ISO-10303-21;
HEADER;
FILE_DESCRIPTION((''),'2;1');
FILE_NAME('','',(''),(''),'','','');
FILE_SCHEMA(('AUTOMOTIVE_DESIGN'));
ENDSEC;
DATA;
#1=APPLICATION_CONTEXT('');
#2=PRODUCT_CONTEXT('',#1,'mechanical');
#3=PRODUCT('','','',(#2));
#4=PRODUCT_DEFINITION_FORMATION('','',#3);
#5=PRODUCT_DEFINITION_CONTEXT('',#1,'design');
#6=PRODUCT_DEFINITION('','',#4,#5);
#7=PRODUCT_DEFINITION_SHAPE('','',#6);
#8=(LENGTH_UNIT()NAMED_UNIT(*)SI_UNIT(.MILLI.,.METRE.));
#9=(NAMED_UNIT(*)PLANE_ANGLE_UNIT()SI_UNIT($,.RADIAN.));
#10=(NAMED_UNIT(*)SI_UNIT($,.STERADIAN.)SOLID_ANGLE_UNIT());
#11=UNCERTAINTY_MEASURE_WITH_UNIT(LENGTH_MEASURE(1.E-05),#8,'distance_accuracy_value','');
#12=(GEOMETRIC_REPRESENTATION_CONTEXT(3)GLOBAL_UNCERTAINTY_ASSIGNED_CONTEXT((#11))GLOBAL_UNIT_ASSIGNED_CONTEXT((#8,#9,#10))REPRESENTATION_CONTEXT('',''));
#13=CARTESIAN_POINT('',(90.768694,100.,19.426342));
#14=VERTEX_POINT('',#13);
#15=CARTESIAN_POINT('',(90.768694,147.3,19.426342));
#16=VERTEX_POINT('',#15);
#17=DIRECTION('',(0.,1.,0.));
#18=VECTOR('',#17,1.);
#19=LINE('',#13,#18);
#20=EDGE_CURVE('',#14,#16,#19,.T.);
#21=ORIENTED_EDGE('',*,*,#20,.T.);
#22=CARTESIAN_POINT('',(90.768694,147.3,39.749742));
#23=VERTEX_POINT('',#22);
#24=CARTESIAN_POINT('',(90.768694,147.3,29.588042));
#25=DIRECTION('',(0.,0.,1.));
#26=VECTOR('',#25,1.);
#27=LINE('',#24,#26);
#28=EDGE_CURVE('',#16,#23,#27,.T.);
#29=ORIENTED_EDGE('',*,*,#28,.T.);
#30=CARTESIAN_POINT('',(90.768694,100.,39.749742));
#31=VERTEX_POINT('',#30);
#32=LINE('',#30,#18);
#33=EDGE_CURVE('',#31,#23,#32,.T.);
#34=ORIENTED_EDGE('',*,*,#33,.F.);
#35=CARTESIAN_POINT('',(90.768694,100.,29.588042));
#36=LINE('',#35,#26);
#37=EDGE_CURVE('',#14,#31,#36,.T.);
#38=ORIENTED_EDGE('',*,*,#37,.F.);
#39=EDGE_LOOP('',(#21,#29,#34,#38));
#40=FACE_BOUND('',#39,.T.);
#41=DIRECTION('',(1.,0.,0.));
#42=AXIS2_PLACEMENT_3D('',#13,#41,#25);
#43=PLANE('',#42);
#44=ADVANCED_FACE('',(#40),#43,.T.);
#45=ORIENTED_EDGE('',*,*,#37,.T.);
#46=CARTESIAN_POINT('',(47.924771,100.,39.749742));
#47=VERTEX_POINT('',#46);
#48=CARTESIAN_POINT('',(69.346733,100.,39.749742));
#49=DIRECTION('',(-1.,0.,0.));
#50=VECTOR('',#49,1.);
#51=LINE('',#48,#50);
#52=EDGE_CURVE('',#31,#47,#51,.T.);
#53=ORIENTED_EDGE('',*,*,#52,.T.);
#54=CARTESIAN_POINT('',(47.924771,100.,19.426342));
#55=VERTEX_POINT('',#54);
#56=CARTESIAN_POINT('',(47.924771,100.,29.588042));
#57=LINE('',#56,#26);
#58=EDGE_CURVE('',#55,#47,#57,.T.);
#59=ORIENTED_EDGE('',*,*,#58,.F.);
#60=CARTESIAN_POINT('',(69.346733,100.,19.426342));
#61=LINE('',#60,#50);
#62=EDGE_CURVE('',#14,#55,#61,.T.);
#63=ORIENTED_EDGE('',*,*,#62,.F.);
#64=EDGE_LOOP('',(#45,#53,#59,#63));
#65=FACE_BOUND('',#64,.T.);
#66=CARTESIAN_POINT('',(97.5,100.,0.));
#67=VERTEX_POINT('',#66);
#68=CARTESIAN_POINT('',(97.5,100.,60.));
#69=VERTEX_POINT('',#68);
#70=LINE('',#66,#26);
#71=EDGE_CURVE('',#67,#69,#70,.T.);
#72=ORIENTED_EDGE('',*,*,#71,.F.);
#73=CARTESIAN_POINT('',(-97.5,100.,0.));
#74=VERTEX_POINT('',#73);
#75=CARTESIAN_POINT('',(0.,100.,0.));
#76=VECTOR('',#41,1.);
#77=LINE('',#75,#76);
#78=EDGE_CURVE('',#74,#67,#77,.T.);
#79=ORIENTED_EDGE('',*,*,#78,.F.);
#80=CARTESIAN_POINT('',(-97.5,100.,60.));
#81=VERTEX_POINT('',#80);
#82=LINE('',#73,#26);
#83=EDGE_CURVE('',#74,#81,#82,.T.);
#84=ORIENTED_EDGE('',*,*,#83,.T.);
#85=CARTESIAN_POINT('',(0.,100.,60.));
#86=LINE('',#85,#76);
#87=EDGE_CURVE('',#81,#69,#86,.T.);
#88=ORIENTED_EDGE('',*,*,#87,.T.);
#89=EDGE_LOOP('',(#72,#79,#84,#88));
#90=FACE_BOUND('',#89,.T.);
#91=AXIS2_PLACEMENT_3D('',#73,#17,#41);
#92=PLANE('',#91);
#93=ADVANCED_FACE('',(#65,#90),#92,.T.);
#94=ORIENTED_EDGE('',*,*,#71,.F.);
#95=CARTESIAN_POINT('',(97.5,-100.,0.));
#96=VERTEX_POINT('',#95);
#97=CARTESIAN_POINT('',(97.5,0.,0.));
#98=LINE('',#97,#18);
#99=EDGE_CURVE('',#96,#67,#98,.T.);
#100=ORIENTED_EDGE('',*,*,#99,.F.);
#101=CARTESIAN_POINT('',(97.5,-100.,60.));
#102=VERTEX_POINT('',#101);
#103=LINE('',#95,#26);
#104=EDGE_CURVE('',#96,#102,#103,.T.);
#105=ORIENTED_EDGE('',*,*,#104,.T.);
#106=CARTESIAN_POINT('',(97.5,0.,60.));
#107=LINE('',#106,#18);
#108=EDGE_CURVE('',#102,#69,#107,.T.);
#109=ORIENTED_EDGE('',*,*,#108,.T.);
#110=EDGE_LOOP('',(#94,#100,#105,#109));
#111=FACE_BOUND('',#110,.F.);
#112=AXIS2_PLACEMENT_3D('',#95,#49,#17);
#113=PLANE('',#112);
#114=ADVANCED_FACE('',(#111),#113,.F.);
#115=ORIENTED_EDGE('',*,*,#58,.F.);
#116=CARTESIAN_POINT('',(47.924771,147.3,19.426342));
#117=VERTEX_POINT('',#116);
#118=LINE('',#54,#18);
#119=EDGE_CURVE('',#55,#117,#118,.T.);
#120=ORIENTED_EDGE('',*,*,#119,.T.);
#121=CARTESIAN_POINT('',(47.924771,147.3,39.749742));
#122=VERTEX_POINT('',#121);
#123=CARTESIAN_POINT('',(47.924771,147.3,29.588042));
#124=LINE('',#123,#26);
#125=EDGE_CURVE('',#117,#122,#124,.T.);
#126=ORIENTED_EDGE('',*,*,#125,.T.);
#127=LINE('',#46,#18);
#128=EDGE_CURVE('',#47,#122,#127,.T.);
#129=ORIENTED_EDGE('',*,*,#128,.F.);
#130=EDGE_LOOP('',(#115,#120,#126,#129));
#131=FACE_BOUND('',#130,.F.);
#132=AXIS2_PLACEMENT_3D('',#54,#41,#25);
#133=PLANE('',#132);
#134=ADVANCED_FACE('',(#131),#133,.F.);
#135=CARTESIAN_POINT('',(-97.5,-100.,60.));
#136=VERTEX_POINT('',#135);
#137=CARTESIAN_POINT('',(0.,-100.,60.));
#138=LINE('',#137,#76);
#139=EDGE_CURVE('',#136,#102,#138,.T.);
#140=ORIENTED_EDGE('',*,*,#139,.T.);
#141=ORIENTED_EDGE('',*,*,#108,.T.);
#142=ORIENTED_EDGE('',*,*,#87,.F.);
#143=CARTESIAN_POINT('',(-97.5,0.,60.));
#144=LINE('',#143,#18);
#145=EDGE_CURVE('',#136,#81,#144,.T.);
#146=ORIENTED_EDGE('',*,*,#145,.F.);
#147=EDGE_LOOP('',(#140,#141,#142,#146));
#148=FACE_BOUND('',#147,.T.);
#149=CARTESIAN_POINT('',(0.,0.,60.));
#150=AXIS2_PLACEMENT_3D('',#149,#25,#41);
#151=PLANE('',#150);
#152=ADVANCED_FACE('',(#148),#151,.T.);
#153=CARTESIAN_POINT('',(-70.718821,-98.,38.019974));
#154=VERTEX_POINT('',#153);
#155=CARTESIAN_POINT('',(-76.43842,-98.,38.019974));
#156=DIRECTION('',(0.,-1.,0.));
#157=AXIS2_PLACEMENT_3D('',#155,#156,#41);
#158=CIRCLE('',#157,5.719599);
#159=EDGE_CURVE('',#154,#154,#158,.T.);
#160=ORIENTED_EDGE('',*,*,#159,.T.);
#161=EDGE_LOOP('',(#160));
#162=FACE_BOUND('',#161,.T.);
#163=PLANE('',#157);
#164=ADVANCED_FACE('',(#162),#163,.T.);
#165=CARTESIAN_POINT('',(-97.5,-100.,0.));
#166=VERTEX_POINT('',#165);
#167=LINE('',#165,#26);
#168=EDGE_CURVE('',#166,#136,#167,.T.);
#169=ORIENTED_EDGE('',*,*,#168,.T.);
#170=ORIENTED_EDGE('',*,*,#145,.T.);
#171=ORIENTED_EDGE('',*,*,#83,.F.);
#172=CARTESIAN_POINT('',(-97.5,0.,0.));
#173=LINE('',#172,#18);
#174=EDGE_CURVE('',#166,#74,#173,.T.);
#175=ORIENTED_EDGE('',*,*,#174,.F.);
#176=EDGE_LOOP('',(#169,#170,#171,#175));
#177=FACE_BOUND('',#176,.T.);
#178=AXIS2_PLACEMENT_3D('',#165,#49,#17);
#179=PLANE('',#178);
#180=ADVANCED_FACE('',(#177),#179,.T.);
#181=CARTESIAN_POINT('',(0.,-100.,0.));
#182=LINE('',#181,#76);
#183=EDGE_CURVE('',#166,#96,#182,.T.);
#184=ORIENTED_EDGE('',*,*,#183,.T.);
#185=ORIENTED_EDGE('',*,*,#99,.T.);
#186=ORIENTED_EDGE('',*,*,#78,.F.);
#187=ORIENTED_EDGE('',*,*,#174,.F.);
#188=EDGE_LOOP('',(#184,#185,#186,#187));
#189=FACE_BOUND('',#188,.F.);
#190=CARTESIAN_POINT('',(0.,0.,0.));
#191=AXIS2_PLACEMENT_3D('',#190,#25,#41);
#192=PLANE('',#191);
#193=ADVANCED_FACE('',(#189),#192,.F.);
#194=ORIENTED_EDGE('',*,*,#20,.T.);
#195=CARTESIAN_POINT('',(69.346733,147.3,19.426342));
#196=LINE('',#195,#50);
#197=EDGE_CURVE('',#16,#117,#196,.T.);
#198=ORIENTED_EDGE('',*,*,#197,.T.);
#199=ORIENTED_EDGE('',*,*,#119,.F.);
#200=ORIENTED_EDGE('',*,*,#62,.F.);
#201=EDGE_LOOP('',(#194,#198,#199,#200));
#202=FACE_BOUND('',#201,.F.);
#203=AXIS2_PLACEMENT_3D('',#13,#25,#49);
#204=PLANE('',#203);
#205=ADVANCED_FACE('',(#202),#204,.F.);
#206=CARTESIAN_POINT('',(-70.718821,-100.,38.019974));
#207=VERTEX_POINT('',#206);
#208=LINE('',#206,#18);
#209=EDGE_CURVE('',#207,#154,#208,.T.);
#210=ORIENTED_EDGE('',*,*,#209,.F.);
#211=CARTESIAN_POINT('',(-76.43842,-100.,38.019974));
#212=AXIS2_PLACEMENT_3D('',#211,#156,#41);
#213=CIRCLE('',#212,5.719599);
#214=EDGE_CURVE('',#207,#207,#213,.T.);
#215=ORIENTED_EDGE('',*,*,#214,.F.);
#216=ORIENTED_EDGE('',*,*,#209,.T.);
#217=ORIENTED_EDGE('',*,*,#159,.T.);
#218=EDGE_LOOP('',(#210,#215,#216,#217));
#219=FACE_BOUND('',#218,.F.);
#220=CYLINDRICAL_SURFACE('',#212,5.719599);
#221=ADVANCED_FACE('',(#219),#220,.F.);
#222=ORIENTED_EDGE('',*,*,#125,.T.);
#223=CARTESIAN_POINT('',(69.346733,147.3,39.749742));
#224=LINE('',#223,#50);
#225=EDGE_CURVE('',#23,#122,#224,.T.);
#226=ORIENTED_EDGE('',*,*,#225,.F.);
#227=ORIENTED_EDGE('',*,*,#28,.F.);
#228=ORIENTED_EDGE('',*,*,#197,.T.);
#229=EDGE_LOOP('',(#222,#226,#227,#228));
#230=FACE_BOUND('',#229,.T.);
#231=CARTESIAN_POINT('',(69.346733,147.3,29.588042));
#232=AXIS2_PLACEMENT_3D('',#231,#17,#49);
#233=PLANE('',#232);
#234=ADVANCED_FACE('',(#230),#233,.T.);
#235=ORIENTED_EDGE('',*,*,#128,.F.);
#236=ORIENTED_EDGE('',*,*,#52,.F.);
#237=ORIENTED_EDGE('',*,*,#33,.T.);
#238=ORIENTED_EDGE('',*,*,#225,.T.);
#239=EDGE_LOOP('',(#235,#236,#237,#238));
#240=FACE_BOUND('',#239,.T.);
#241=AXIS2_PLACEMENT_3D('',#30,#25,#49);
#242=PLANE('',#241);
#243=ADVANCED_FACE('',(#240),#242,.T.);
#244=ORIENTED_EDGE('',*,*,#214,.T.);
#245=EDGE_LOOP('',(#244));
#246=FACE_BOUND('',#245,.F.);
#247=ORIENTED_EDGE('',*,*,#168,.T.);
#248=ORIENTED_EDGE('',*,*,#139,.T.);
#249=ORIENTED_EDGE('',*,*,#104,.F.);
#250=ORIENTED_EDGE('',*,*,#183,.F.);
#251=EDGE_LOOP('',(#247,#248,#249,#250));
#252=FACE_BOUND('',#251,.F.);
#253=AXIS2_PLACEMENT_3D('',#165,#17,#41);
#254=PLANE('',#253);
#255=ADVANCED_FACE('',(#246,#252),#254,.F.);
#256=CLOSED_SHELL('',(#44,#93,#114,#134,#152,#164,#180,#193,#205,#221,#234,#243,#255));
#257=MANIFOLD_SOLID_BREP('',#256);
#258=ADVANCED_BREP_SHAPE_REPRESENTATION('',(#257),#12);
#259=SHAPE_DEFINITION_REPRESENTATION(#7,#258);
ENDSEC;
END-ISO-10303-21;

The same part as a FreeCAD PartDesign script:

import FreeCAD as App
import Part
import Sketcher
from FreeCAD import Vector

doc = App.newDocument("Part")
body = doc.addObject("PartDesign::Body", "Body")

# Sketch on XY plane
sketch1 = body.newObject("Sketcher::SketchObject", "Sketch")
sketch1.AttachmentSupport = (doc.getObject("XY_Plane"), [""])
sketch1.MapMode = "FlatFace"
sketch1.addGeometry([
    Part.LineSegment(Vector(-98, 100, 0), Vector(-98, -100, 0)),
    Part.LineSegment(Vector(-98, -100, 0), Vector(98, -100, 0)),
    Part.LineSegment(Vector(98, -100, 0), Vector(98, 100, 0)),
    Part.LineSegment(Vector(98, 100, 0), Vector(-98, 100, 0)),
], False)
sketch1.addConstraint([
    Sketcher.Constraint("Coincident", 0, 2, 1, 1),
    Sketcher.Constraint("Coincident", 1, 2, 2, 1),
    Sketcher.Constraint("Coincident", 2, 2, 3, 1),
    Sketcher.Constraint("Coincident", 3, 2, 0, 1),
    Sketcher.Constraint("Vertical", 0),
    Sketcher.Constraint("Horizontal", 1),
    Sketcher.Constraint("Vertical", 2),
    Sketcher.Constraint("Horizontal", 3),
    Sketcher.Constraint("Symmetric", 0, 2, 2, 2, -1, 1),
    Sketcher.Constraint("DistanceX", 1, 1, 1, 2, 195.0),
    Sketcher.Constraint("DistanceY", 0, 2, 0, 1, 200.0),
])
pad1 = body.newObject("PartDesign::Pad", "Pad")
pad1.Profile = sketch1
pad1.Length = 60

# Sketch on XZ plane
sketch2 = body.newObject("Sketcher::SketchObject", "Sketch001")
sketch2.AttachmentSupport = (doc.getObject("XZ_Plane"), [""])
sketch2.MapMode = "FlatFace"
sketch2.AttachmentOffset = App.Placement(Vector(0, 0, -100), App.Rotation())
sketch2.addGeometry([
    Part.LineSegment(Vector(91, 40, 0), Vector(91, 19, 0)),
    Part.LineSegment(Vector(91, 19, 0), Vector(48, 19, 0)),
    Part.LineSegment(Vector(48, 19, 0), Vector(48, 40, 0)),
    Part.LineSegment(Vector(48, 40, 0), Vector(91, 40, 0)),
], False)
sketch2.addConstraint([
    Sketcher.Constraint("Coincident", 0, 2, 1, 1),
    Sketcher.Constraint("Coincident", 1, 2, 2, 1),
    Sketcher.Constraint("Coincident", 2, 2, 3, 1),
    Sketcher.Constraint("Coincident", 3, 2, 0, 1),
    Sketcher.Constraint("Vertical", 0),
    Sketcher.Constraint("Horizontal", 1),
    Sketcher.Constraint("Vertical", 2),
    Sketcher.Constraint("Horizontal", 3),
    Sketcher.Constraint("DistanceY", 0, 2, 0, 1, 20.3234),
    Sketcher.Constraint("DistanceX", 1, 2, 1, 1, 42.843923),
    Sketcher.Constraint("DistanceX", -1, 1, 1, 2, 47.924771),
    Sketcher.Constraint("DistanceY", -1, 1, 2, 2, 39.749742),
])
pad2 = body.newObject("PartDesign::Pad", "Pad001")
pad2.Profile = sketch2
pad2.Length = 47.3
pad2.Reversed = True

# Sketch on XZ plane
sketch3 = body.newObject("Sketcher::SketchObject", "Sketch002")
sketch3.AttachmentSupport = (doc.getObject("XZ_Plane"), [""])
sketch3.MapMode = "FlatFace"
sketch3.AttachmentOffset = App.Placement(Vector(0, 0, 100), App.Rotation())
sketch3.addGeometry(Part.Circle(Vector(-76, 38, 0), Vector(0, 0, 1), 6), False)
sketch3.addConstraint([
    Sketcher.Constraint("Diameter", 0, 11.439198),
    Sketcher.Constraint("DistanceX", 0, 3, -1, 1, 76.43842),
    Sketcher.Constraint("DistanceY", -1, 1, 0, 3, 38.019974),
])
pocket1 = body.newObject("PartDesign::Pocket", "Pocket")
pocket1.Profile = sketch3
pocket1.Length = 2

doc.recompute()
